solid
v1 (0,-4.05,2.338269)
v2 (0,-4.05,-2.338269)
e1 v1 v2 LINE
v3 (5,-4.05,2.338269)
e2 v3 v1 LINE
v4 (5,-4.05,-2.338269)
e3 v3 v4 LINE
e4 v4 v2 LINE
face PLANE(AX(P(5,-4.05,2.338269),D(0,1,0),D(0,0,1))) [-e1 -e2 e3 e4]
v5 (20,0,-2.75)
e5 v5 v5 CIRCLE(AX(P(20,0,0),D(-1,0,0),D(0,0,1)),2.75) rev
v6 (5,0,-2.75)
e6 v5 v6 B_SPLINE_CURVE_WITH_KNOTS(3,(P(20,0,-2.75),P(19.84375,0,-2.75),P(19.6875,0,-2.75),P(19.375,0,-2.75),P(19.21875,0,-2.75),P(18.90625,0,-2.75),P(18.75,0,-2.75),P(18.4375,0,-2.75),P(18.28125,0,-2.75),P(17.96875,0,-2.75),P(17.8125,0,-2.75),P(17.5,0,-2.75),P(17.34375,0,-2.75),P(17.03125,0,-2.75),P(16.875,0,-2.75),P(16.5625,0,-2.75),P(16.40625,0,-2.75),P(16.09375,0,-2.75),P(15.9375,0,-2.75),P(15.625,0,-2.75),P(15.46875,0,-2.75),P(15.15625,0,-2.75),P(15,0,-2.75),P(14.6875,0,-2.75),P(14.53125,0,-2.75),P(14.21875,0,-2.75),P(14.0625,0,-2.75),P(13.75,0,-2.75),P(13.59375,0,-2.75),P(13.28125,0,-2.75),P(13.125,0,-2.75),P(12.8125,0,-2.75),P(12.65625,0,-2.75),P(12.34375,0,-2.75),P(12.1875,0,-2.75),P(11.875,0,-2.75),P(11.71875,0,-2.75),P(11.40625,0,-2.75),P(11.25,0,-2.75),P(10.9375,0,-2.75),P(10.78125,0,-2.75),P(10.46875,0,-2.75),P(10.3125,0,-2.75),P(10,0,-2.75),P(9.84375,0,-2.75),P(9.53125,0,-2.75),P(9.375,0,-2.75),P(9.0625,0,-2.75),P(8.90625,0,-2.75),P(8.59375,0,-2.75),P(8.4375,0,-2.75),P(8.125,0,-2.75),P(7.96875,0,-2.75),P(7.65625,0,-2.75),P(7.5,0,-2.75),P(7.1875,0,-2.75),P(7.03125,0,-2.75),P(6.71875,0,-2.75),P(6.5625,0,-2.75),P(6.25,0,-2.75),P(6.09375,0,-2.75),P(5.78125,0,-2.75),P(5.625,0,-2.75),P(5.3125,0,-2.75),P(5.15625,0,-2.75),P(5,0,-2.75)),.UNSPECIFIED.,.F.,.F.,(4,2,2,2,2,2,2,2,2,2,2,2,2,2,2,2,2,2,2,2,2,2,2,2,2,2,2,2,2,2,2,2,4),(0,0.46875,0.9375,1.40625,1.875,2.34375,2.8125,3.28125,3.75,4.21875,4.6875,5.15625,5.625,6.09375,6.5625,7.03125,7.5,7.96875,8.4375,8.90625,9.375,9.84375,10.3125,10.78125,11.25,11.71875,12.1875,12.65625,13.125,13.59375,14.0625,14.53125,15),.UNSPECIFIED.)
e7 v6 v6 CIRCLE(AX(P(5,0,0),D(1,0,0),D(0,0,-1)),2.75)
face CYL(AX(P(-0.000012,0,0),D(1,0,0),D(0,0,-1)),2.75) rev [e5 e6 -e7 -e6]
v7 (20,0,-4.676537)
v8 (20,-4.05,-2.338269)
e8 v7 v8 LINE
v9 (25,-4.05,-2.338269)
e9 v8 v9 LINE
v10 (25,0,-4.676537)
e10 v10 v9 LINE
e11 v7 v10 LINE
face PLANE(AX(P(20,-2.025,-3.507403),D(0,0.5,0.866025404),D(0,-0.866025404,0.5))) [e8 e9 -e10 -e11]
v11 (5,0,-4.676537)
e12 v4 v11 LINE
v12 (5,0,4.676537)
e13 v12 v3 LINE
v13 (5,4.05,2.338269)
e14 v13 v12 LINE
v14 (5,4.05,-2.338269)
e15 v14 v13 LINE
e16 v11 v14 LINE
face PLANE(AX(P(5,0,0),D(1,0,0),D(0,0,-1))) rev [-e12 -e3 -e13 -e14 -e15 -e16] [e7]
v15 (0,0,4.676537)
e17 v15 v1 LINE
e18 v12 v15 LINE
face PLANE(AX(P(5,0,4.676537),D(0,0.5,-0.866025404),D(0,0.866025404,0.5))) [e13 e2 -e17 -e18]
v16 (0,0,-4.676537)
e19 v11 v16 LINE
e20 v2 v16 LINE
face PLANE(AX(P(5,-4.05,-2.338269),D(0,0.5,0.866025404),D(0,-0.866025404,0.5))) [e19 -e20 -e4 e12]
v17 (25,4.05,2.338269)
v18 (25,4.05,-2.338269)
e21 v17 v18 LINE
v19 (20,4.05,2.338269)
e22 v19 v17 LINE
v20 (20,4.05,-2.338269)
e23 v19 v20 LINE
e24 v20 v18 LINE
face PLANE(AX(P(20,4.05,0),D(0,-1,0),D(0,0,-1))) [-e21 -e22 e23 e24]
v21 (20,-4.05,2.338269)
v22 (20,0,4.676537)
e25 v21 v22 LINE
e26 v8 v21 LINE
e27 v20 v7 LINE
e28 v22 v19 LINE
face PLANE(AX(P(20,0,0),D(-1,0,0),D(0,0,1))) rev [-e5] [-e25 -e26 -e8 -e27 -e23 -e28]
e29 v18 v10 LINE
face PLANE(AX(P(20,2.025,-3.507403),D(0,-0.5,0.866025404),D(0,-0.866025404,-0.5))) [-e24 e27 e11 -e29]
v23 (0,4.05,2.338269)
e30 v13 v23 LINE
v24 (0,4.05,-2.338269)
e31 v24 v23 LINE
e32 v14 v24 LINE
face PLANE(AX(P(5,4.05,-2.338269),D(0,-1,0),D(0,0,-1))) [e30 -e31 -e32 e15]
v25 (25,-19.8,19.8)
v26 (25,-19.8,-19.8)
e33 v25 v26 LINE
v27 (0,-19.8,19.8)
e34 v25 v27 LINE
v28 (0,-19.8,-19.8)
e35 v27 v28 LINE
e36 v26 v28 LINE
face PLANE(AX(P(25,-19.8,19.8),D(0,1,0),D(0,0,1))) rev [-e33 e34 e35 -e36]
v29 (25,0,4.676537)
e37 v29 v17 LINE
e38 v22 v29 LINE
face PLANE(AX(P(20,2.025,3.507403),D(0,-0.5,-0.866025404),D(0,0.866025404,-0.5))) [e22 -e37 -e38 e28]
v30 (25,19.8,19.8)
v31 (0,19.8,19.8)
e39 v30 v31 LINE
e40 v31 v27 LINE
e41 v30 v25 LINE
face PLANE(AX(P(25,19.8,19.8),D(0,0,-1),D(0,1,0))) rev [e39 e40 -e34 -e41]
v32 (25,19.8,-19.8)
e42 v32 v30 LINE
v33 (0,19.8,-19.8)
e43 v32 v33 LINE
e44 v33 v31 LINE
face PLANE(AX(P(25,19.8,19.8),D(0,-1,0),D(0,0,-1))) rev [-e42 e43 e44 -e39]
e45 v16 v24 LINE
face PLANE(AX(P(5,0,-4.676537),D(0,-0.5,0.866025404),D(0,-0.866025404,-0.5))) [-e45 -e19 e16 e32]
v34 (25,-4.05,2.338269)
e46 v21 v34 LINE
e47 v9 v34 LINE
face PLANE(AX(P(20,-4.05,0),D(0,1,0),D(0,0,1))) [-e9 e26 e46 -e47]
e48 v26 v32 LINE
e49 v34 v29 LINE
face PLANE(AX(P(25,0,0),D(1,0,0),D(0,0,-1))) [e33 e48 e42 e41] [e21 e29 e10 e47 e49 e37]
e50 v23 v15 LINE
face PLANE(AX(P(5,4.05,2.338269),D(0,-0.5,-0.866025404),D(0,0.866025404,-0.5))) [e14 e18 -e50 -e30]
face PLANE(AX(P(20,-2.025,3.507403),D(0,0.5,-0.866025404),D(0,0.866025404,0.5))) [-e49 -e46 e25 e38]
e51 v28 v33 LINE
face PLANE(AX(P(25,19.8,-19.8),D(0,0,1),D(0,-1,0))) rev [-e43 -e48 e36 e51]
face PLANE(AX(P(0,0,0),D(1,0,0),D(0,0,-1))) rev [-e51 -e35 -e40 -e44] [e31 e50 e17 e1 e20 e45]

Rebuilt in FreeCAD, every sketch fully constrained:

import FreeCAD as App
import Part
import Sketcher

V = App.Vector
Q = App.Units.Quantity


def add_polygon(sketch, points):
    """Adds a closed chain of lines whose ends are joined by coincident constraints."""
    first, n = sketch.GeometryCount, len(points)
    for a, b in zip(points, points[1:] + points[:1]):
        sketch.addGeometry(Part.LineSegment(App.Vector(*a, 0), App.Vector(*b, 0)), False)
    for i in range(n):
        sketch.addConstraint(Sketcher.Constraint("Coincident", first + i, 2, first + (i + 1) % n, 1))

doc = App.newDocument("Part")
body = doc.addObject("PartDesign::Body", "Body")

# Sketch on YZ plane
sketch1 = body.newObject("Sketcher::SketchObject", "Sketch")
sketch1.AttachmentSupport = (doc.getObject("YZ_Plane"), [""])
sketch1.MapMode = "FlatFace"
add_polygon(sketch1, [(20, 20), (-20, 20), (-20, -20), (20, -20)])  # lines 0-3
sketch1.addConstraint(Sketcher.Constraint("Horizontal", 0))
sketch1.addConstraint(Sketcher.Constraint("Vertical", 1))
sketch1.addConstraint(Sketcher.Constraint("Horizontal", 2))
sketch1.addConstraint(Sketcher.Constraint("Vertical", 3))
sketch1.addConstraint(Sketcher.Constraint("Symmetric", 0, 2, 2, 2, -1, 1))
sketch1.addConstraint(Sketcher.Constraint("Equal", 2, 1))
sketch1.addConstraint(Sketcher.Constraint("DistanceX", 0, 2, 0, 1, Q("39.6 mm")))
pad1 = body.newObject("PartDesign::Pad", "Pad")
pad1.Profile = sketch1
pad1.Length = 25

# Sketch on YZ plane
sketch2 = body.newObject("Sketcher::SketchObject", "Sketch001")
sketch2.AttachmentSupport = (doc.getObject("YZ_Plane"), [""])
sketch2.MapMode = "FlatFace"
add_polygon(sketch2, [(0, -4.7), (4, -2.3), (4, 2.3), (0, 4.7), (-4, 2.3), (-4, -2.3)])  # lines 0-5
sketch2.addConstraint(Sketcher.Constraint("Vertical", 1))
sketch2.addConstraint(Sketcher.Constraint("Vertical", 4))
sketch2.addConstraint(Sketcher.Constraint("Symmetric", 0, 2, 3, 2, -1, 1))
sketch2.addConstraint(Sketcher.Constraint("Symmetric", 2, 2, 5, 2, -1, 1))
sketch2.addConstraint(Sketcher.Constraint("PointOnObject", 2, 2, -2))
sketch2.addConstraint(Sketcher.Constraint("Parallel", 2, 5))
sketch2.addConstraint(Sketcher.Constraint("Horizontal", 1, 2, 3, 2))
sketch2.addConstraint(Sketcher.Constraint("Angle", 0, Q("30 deg")))
sketch2.addConstraint(Sketcher.Constraint("DistanceX", 3, 2, 1, 2, Q("8.1 mm")))
sketch2.addConstraint(Sketcher.Constraint("DistanceY", 1, 1, 1, 2, Q("4.676537 mm")))
pocket1 = body.newObject("PartDesign::Pocket", "Pocket")
pocket1.Profile = sketch2
pocket1.Length = 5
pocket1.Reversed = True

# Sketch on YZ plane
sketch3 = body.newObject("Sketcher::SketchObject", "Sketch002")
sketch3.AttachmentSupport = (doc.getObject("YZ_Plane"), [""])
sketch3.MapMode = "FlatFace"
sketch3.addGeometry(Part.Circle(V(0, 0, 0), V(0, 0, 1), 2.8), False)
sketch3.addConstraint(Sketcher.Constraint("Coincident", 0, 3, -1, 1))
sketch3.addConstraint(Sketcher.Constraint("Diameter", 0, Q("5.5 mm")))
pocket2 = body.newObject("PartDesign::Pocket", "Pocket001")
pocket2.Profile = sketch3
pocket2.Type = "ThroughAll"
pocket2.Midplane = True

# Sketch on YZ plane
sketch4 = body.newObject("Sketcher::SketchObject", "Sketch003")
sketch4.AttachmentSupport = (doc.getObject("YZ_Plane"), [""])
sketch4.MapMode = "FlatFace"
sketch4.AttachmentOffset = App.Placement(V(0, 0, 25), App.Rotation())
add_polygon(sketch4, [(0, -4.7), (4, -2.3), (4, 2.3), (0, 4.7), (-4, 2.3), (-4, -2.3)])  # lines 0-5
sketch4.addConstraint(Sketcher.Constraint("Vertical", 1))
sketch4.addConstraint(Sketcher.Constraint("Vertical", 4))
sketch4.addConstraint(Sketcher.Constraint("Symmetric", 0, 2, 3, 2, -1, 1))
sketch4.addConstraint(Sketcher.Constraint("Symmetric", 2, 2, 5, 2, -1, 1))
sketch4.addConstraint(Sketcher.Constraint("PointOnObject", 2, 2, -2))
sketch4.addConstraint(Sketcher.Constraint("Parallel", 2, 5))
sketch4.addConstraint(Sketcher.Constraint("Horizontal", 1, 2, 3, 2))
sketch4.addConstraint(Sketcher.Constraint("Angle", 0, Q("30 deg")))
sketch4.addConstraint(Sketcher.Constraint("DistanceX", 3, 2, 1, 2, Q("8.1 mm")))
sketch4.addConstraint(Sketcher.Constraint("DistanceY", 1, 1, 1, 2, Q("4.676537 mm")))
pocket3 = body.newObject("PartDesign::Pocket", "Pocket002")
pocket3.Profile = sketch4
pocket3.Length = 5

doc.recompute()
